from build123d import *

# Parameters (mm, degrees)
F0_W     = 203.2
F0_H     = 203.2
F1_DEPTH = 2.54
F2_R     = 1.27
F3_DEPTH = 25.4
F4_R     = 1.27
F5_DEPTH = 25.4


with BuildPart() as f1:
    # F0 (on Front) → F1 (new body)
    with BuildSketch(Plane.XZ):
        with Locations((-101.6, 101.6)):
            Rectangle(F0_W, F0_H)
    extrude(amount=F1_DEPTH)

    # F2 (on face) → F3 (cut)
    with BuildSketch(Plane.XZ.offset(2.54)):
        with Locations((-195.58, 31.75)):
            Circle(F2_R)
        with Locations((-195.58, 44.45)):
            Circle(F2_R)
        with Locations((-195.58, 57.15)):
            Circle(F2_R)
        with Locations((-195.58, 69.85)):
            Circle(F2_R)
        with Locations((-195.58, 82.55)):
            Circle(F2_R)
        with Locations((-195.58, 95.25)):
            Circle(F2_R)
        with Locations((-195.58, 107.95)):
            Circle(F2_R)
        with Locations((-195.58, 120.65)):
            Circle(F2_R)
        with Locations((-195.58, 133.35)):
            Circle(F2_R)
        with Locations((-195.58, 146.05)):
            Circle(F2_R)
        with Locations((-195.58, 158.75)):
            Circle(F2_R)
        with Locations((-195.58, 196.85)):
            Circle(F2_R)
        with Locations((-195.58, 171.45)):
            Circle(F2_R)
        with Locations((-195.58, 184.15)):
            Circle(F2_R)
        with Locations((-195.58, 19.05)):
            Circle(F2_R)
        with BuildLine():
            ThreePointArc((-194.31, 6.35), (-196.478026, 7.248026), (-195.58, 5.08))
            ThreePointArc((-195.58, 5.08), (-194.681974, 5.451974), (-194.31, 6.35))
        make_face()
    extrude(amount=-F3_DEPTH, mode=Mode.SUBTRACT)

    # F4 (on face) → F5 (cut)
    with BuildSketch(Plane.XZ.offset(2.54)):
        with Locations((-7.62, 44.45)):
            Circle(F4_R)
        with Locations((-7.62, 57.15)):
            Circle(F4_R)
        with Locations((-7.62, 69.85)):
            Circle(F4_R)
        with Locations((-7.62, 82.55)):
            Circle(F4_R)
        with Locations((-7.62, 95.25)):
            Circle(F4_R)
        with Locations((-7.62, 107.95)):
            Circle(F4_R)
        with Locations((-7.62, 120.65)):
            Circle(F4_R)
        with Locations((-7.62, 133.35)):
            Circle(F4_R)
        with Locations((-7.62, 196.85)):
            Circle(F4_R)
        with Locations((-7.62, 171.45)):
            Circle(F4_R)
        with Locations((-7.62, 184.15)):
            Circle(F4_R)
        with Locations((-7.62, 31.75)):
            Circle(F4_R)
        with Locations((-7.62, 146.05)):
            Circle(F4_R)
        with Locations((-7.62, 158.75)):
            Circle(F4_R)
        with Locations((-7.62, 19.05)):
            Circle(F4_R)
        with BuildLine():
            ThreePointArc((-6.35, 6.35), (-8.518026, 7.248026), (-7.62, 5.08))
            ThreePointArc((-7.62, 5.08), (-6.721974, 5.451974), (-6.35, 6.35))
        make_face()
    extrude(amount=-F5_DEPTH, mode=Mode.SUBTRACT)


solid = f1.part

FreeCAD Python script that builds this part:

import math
import FreeCAD as App
import Part
import Sketcher

V = App.Vector
Q = App.Units.Quantity


def add_polygon(sketch, points):
    """Adds a closed chain of lines whose ends are joined by coincident constraints."""
    first, n = sketch.GeometryCount, len(points)
    for a, b in zip(points, points[1:] + points[:1]):
        sketch.addGeometry(Part.LineSegment(App.Vector(*a, 0), App.Vector(*b, 0)), False)
    for i in range(n):
        sketch.addConstraint(Sketcher.Constraint("Coincident", first + i, 2, first + (i + 1) % n, 1))

doc = App.newDocument("Part")
body = doc.addObject("PartDesign::Body", "Body")

# Sketch on XZ plane
sketch1 = doc.addObject("Sketcher::SketchObject", "Sketch")
body.addObject(sketch1)
sketch1.AttachmentSupport = (doc.XZ_Plane, [""])
sketch1.MapMode = "FlatFace"
add_polygon(sketch1, [(-203, 203), (-203, 0), (0, 0), (0, 203)])  # lines 0-3
sketch1.addConstraint([
    Sketcher.Constraint("Vertical", 0),
    Sketcher.Constraint("Horizontal", 1),
    Sketcher.Constraint("Vertical", 2),
    Sketcher.Constraint("Horizontal", 3),
    Sketcher.Constraint("Coincident", 1, 2, -1, 1),
    Sketcher.Constraint("Equal", 3, 0),
    Sketcher.Constraint("DistanceX", 1, 1, 1, 2, Q("8 in")),
])
pad1 = doc.addObject("PartDesign::Pad", "Pad")
body.addObject(pad1)
pad1.Profile = sketch1
pad1.Length = Q("0.1 in")

# Sketch on XZ plane
sketch2 = doc.addObject("Sketcher::SketchObject", "Sketch001")
body.addObject(sketch2)
sketch2.AttachmentSupport = (doc.XZ_Plane, [""])
sketch2.MapMode = "FlatFace"
sketch2.AttachmentOffset = App.Placement(V(0, 0, 0.1 * 25.4), App.Rotation())
sketch2.addGeometry([
    Part.Circle(V(-195.6, 31.8, 0), V(0, 0, 1), 1.3),  # 0
    Part.Circle(V(-195.6, 44.5, 0), V(0, 0, 1), 1.3),  # 1
    Part.Circle(V(-195.6, 57.1, 0), V(0, 0, 1), 1.3),  # 2
    Part.Circle(V(-195.6, 69.8, 0), V(0, 0, 1), 1.3),  # 3
    Part.Circle(V(-195.6, 82.5, 0), V(0, 0, 1), 1.3),  # 4
    Part.Circle(V(-195.6, 95.2, 0), V(0, 0, 1), 1.3),  # 5
    Part.Circle(V(-195.6, 108, 0), V(0, 0, 1), 1.3),  # 6
    Part.Circle(V(-195.6, 120.7, 0), V(0, 0, 1), 1.3),  # 7
    Part.Circle(V(-195.6, 133.3, 0), V(0, 0, 1), 1.3),  # 8
    Part.Circle(V(-195.6, 146.1, 0), V(0, 0, 1), 1.3),  # 9
    Part.Circle(V(-195.6, 158.8, 0), V(0, 0, 1), 1.3),  # 10
    Part.Circle(V(-195.6, 196.8, 0), V(0, 0, 1), 1.3),  # 11
    Part.Circle(V(-195.6, 171.4, 0), V(0, 0, 1), 1.3),  # 12
    Part.Circle(V(-195.6, 184.2, 0), V(0, 0, 1), 1.3),  # 13
    Part.Circle(V(-195.6, 19.1, 0), V(0, 0, 1), 1.3),  # 14
    Part.ArcOfCircle(Part.Circle(V(-195.6, 6.4, 0), V(0, 0, 1), 1.3), math.radians(0), math.radians(270)),  # 15
    Part.ArcOfCircle(Part.Circle(V(-195.6, 6.3, 0), V(0, 0, 1), 1.3), math.radians(-90), math.radians(0)),  # 16
], False)
sketch2.addConstraint([
    Sketcher.Constraint("Tangent", 15, 1, 16, 2),
    Sketcher.Constraint("Coincident", 16, 1, 15, 2),
    Sketcher.Constraint("Equal", 0, 1),
    Sketcher.Constraint("Equal", 1, 2),
    Sketcher.Constraint("Equal", 2, 3),
    Sketcher.Constraint("Equal", 3, 4),
    Sketcher.Constraint("Equal", 4, 5),
    Sketcher.Constraint("Equal", 5, 6),
    Sketcher.Constraint("Equal", 6, 7),
    Sketcher.Constraint("Equal", 7, 8),
    Sketcher.Constraint("Equal", 8, 9),
    Sketcher.Constraint("Equal", 9, 10),
    Sketcher.Constraint("Equal", 10, 11),
    Sketcher.Constraint("Equal", 11, 12),
    Sketcher.Constraint("Equal", 12, 13),
    Sketcher.Constraint("Equal", 13, 14),
    Sketcher.Constraint("Equal", 14, 15),
    Sketcher.Constraint("Horizontal", 16, 3, 15, 1),
    Sketcher.Constraint("Vertical", 0, 3, 1, 3),
    Sketcher.Constraint("Vertical", 1, 3, 2, 3),
    Sketcher.Constraint("Vertical", 2, 3, 3, 3),
    Sketcher.Constraint("Vertical", 3, 3, 4, 3),
    Sketcher.Constraint("Vertical", 4, 3, 5, 3),
    Sketcher.Constraint("Vertical", 5, 3, 6, 3),
    Sketcher.Constraint("Vertical", 6, 3, 7, 3),
    Sketcher.Constraint("Vertical", 7, 3, 8, 3),
    Sketcher.Constraint("Vertical", 8, 3, 9, 3),
    Sketcher.Constraint("Vertical", 9, 3, 10, 3),
    Sketcher.Constraint("Vertical", 10, 3, 11, 3),
    Sketcher.Constraint("Vertical", 11, 3, 12, 3),
    Sketcher.Constraint("Vertical", 12, 3, 13, 3),
    Sketcher.Constraint("Vertical", 13, 3, 14, 3),
    Sketcher.Constraint("Vertical", 14, 3, 15, 3),
    Sketcher.Constraint("Vertical", 15, 3, 16, 1),
    Sketcher.Constraint("Diameter", 0, Q("0.1 in")),
    Sketcher.Constraint("DistanceY", 0, 3, 2, 3, Q("1 in")),
    Sketcher.Constraint("DistanceY", 1, 3, 3, 3, Q("1 in")),
    Sketcher.Constraint("DistanceY", 2, 3, 4, 3, Q("1 in")),
    Sketcher.Constraint("DistanceY", 3, 3, 5, 3, Q("1 in")),
    Sketcher.Constraint("DistanceY", 4, 3, 6, 3, Q("1 in")),
    Sketcher.Constraint("DistanceY", 5, 3, 7, 3, Q("1 in")),
    Sketcher.Constraint("DistanceY", 6, 3, 8, 3, Q("1 in")),
    Sketcher.Constraint("DistanceY", 7, 3, 9, 3, Q("1 in")),
    Sketcher.Constraint("DistanceY", 8, 3, 10, 3, Q("1 in")),
    Sketcher.Constraint("DistanceY", 9, 3, 11, 3, Q("2 in")),
    Sketcher.Constraint("DistanceY", 9, 3, 12, 3, Q("1 in")),
    Sketcher.Constraint("DistanceY", 10, 3, 13, 3, Q("1 in")),
    Sketcher.Constraint("DistanceY", 14, 3, 1, 3, Q("1 in")),
    Sketcher.Constraint("DistanceY", 15, 3, 0, 3, Q("1 in")),
    Sketcher.Constraint("DistanceX", 0, 3, -1, 1, Q("7.7 in")),
    Sketcher.Constraint("DistanceY", -1, 1, 16, 1, Q("0.2 in")),
    Sketcher.Constraint("DistanceY", 0, 3, 1, 3, Q("0.5 in")),
])
pocket1 = doc.addObject("PartDesign::Pocket", "Pocket")
body.addObject(pocket1)
pocket1.Profile = sketch2
pocket1.Length = Q("1 in")

# Sketch on XZ plane
sketch3 = doc.addObject("Sketcher::SketchObject", "Sketch002")
body.addObject(sketch3)
sketch3.AttachmentSupport = (doc.XZ_Plane, [""])
sketch3.MapMode = "FlatFace"
sketch3.AttachmentOffset = App.Placement(V(0, 0, 0.1 * 25.4), App.Rotation())
sketch3.addGeometry([
    Part.Circle(V(-7.6, 44.5, 0), V(0, 0, 1), 1.3),  # 0
    Part.Circle(V(-7.6, 57.1, 0), V(0, 0, 1), 1.3),  # 1
    Part.Circle(V(-7.6, 69.8, 0), V(0, 0, 1), 1.3),  # 2
    Part.Circle(V(-7.6, 82.5, 0), V(0, 0, 1), 1.3),  # 3
    Part.Circle(V(-7.6, 95.2, 0), V(0, 0, 1), 1.3),  # 4
    Part.Circle(V(-7.6, 108, 0), V(0, 0, 1), 1.3),  # 5
    Part.Circle(V(-7.6, 120.7, 0), V(0, 0, 1), 1.3),  # 6
    Part.Circle(V(-7.6, 133.3, 0), V(0, 0, 1), 1.3),  # 7
    Part.Circle(V(-7.6, 196.8, 0), V(0, 0, 1), 1.3),  # 8
    Part.Circle(V(-7.6, 171.4, 0), V(0, 0, 1), 1.3),  # 9
    Part.Circle(V(-7.6, 184.2, 0), V(0, 0, 1), 1.3),  # 10
    Part.Circle(V(-7.6, 31.8, 0), V(0, 0, 1), 1.3),  # 11
    Part.Circle(V(-7.6, 146.1, 0), V(0, 0, 1), 1.3),  # 12
    Part.Circle(V(-7.6, 158.8, 0), V(0, 0, 1), 1.3),  # 13
    Part.Circle(V(-7.6, 19.1, 0), V(0, 0, 1), 1.3),  # 14
    Part.ArcOfCircle(Part.Circle(V(-7.6, 6.4, 0), V(0, 0, 1), 1.3), math.radians(0), math.radians(270)),  # 15
    Part.ArcOfCircle(Part.Circle(V(-7.6, 6.3, 0), V(0, 0, 1), 1.3), math.radians(-90), math.radians(0)),  # 16
], False)
sketch3.addConstraint([
    Sketcher.Constraint("Tangent", 15, 1, 16, 2),
    Sketcher.Constraint("Coincident", 16, 1, 15, 2),
    Sketcher.Constraint("Equal", 0, 1),
    Sketcher.Constraint("Equal", 1, 2),
    Sketcher.Constraint("Equal", 2, 3),
    Sketcher.Constraint("Equal", 3, 4),
    Sketcher.Constraint("Equal", 4, 5),
    Sketcher.Constraint("Equal", 5, 6),
    Sketcher.Constraint("Equal", 6, 7),
    Sketcher.Constraint("Equal", 7, 8),
    Sketcher.Constraint("Equal", 8, 9),
    Sketcher.Constraint("Equal", 9, 10),
    Sketcher.Constraint("Equal", 10, 11),
    Sketcher.Constraint("Equal", 11, 12),
    Sketcher.Constraint("Equal", 12, 13),
    Sketcher.Constraint("Equal", 13, 14),
    Sketcher.Constraint("Equal", 14, 15),
    Sketcher.Constraint("Horizontal", 16, 3, 15, 1),
    Sketcher.Constraint("Vertical", 0, 3, 1, 3),
    Sketcher.Constraint("Vertical", 1, 3, 2, 3),
    Sketcher.Constraint("Vertical", 2, 3, 3, 3),
    Sketcher.Constraint("Vertical", 3, 3, 4, 3),
    Sketcher.Constraint("Vertical", 4, 3, 5, 3),
    Sketcher.Constraint("Vertical", 5, 3, 6, 3),
    Sketcher.Constraint("Vertical", 6, 3, 7, 3),
    Sketcher.Constraint("Vertical", 7, 3, 8, 3),
    Sketcher.Constraint("Vertical", 8, 3, 9, 3),
    Sketcher.Constraint("Vertical", 9, 3, 10, 3),
    Sketcher.Constraint("Vertical", 10, 3, 11, 3),
    Sketcher.Constraint("Vertical", 11, 3, 12, 3),
    Sketcher.Constraint("Vertical", 12, 3, 13, 3),
    Sketcher.Constraint("Vertical", 13, 3, 14, 3),
    Sketcher.Constraint("Vertical", 14, 3, 15, 3),
    Sketcher.Constraint("Vertical", 15, 3, 16, 1),
    Sketcher.Constraint("Diameter", 0, Q("0.1 in")),
    Sketcher.Constraint("DistanceY", 0, 3, 2, 3, Q("1 in")),
    Sketcher.Constraint("DistanceY", 1, 3, 3, 3, Q("1 in")),
    Sketcher.Constraint("DistanceY", 2, 3, 4, 3, Q("1 in")),
    Sketcher.Constraint("DistanceY", 3, 3, 5, 3, Q("1 in")),
    Sketcher.Constraint("DistanceY", 4, 3, 6, 3, Q("1 in")),
    Sketcher.Constraint("DistanceY", 5, 3, 7, 3, Q("1 in")),
    Sketcher.Constraint("DistanceY", 6, 3, 8, 3, Q("3 in")),
    Sketcher.Constraint("DistanceY", 9, 3, 8, 3, Q("1 in")),
    Sketcher.Constraint("DistanceY", 7, 3, 10, 3, Q("2 in")),
    Sketcher.Constraint("DistanceY", 11, 3, 1, 3, Q("1 in")),
    Sketcher.Constraint("DistanceY", 12, 3, 9, 3, Q("1 in")),
    Sketcher.Constraint("DistanceY", 7, 3, 13, 3, Q("1 in")),
    Sketcher.Constraint("DistanceY", 14, 3, 0, 3, Q("1 in")),
    Sketcher.Constraint("DistanceY", 15, 3, 11, 3, Q("1 in")),
    Sketcher.Constraint("DistanceX", 0, 3, -1, 1, Q("0.3 in")),
    Sketcher.Constraint("DistanceY", -1, 1, 16, 1, Q("0.2 in")),
    Sketcher.Constraint("DistanceY", 0, 3, 1, 3, Q("0.5 in")),
])
pocket2 = doc.addObject("PartDesign::Pocket", "Pocket001")
body.addObject(pocket2)
pocket2.Profile = sketch3
pocket2.Length = Q("1 in")

doc.recompute()
